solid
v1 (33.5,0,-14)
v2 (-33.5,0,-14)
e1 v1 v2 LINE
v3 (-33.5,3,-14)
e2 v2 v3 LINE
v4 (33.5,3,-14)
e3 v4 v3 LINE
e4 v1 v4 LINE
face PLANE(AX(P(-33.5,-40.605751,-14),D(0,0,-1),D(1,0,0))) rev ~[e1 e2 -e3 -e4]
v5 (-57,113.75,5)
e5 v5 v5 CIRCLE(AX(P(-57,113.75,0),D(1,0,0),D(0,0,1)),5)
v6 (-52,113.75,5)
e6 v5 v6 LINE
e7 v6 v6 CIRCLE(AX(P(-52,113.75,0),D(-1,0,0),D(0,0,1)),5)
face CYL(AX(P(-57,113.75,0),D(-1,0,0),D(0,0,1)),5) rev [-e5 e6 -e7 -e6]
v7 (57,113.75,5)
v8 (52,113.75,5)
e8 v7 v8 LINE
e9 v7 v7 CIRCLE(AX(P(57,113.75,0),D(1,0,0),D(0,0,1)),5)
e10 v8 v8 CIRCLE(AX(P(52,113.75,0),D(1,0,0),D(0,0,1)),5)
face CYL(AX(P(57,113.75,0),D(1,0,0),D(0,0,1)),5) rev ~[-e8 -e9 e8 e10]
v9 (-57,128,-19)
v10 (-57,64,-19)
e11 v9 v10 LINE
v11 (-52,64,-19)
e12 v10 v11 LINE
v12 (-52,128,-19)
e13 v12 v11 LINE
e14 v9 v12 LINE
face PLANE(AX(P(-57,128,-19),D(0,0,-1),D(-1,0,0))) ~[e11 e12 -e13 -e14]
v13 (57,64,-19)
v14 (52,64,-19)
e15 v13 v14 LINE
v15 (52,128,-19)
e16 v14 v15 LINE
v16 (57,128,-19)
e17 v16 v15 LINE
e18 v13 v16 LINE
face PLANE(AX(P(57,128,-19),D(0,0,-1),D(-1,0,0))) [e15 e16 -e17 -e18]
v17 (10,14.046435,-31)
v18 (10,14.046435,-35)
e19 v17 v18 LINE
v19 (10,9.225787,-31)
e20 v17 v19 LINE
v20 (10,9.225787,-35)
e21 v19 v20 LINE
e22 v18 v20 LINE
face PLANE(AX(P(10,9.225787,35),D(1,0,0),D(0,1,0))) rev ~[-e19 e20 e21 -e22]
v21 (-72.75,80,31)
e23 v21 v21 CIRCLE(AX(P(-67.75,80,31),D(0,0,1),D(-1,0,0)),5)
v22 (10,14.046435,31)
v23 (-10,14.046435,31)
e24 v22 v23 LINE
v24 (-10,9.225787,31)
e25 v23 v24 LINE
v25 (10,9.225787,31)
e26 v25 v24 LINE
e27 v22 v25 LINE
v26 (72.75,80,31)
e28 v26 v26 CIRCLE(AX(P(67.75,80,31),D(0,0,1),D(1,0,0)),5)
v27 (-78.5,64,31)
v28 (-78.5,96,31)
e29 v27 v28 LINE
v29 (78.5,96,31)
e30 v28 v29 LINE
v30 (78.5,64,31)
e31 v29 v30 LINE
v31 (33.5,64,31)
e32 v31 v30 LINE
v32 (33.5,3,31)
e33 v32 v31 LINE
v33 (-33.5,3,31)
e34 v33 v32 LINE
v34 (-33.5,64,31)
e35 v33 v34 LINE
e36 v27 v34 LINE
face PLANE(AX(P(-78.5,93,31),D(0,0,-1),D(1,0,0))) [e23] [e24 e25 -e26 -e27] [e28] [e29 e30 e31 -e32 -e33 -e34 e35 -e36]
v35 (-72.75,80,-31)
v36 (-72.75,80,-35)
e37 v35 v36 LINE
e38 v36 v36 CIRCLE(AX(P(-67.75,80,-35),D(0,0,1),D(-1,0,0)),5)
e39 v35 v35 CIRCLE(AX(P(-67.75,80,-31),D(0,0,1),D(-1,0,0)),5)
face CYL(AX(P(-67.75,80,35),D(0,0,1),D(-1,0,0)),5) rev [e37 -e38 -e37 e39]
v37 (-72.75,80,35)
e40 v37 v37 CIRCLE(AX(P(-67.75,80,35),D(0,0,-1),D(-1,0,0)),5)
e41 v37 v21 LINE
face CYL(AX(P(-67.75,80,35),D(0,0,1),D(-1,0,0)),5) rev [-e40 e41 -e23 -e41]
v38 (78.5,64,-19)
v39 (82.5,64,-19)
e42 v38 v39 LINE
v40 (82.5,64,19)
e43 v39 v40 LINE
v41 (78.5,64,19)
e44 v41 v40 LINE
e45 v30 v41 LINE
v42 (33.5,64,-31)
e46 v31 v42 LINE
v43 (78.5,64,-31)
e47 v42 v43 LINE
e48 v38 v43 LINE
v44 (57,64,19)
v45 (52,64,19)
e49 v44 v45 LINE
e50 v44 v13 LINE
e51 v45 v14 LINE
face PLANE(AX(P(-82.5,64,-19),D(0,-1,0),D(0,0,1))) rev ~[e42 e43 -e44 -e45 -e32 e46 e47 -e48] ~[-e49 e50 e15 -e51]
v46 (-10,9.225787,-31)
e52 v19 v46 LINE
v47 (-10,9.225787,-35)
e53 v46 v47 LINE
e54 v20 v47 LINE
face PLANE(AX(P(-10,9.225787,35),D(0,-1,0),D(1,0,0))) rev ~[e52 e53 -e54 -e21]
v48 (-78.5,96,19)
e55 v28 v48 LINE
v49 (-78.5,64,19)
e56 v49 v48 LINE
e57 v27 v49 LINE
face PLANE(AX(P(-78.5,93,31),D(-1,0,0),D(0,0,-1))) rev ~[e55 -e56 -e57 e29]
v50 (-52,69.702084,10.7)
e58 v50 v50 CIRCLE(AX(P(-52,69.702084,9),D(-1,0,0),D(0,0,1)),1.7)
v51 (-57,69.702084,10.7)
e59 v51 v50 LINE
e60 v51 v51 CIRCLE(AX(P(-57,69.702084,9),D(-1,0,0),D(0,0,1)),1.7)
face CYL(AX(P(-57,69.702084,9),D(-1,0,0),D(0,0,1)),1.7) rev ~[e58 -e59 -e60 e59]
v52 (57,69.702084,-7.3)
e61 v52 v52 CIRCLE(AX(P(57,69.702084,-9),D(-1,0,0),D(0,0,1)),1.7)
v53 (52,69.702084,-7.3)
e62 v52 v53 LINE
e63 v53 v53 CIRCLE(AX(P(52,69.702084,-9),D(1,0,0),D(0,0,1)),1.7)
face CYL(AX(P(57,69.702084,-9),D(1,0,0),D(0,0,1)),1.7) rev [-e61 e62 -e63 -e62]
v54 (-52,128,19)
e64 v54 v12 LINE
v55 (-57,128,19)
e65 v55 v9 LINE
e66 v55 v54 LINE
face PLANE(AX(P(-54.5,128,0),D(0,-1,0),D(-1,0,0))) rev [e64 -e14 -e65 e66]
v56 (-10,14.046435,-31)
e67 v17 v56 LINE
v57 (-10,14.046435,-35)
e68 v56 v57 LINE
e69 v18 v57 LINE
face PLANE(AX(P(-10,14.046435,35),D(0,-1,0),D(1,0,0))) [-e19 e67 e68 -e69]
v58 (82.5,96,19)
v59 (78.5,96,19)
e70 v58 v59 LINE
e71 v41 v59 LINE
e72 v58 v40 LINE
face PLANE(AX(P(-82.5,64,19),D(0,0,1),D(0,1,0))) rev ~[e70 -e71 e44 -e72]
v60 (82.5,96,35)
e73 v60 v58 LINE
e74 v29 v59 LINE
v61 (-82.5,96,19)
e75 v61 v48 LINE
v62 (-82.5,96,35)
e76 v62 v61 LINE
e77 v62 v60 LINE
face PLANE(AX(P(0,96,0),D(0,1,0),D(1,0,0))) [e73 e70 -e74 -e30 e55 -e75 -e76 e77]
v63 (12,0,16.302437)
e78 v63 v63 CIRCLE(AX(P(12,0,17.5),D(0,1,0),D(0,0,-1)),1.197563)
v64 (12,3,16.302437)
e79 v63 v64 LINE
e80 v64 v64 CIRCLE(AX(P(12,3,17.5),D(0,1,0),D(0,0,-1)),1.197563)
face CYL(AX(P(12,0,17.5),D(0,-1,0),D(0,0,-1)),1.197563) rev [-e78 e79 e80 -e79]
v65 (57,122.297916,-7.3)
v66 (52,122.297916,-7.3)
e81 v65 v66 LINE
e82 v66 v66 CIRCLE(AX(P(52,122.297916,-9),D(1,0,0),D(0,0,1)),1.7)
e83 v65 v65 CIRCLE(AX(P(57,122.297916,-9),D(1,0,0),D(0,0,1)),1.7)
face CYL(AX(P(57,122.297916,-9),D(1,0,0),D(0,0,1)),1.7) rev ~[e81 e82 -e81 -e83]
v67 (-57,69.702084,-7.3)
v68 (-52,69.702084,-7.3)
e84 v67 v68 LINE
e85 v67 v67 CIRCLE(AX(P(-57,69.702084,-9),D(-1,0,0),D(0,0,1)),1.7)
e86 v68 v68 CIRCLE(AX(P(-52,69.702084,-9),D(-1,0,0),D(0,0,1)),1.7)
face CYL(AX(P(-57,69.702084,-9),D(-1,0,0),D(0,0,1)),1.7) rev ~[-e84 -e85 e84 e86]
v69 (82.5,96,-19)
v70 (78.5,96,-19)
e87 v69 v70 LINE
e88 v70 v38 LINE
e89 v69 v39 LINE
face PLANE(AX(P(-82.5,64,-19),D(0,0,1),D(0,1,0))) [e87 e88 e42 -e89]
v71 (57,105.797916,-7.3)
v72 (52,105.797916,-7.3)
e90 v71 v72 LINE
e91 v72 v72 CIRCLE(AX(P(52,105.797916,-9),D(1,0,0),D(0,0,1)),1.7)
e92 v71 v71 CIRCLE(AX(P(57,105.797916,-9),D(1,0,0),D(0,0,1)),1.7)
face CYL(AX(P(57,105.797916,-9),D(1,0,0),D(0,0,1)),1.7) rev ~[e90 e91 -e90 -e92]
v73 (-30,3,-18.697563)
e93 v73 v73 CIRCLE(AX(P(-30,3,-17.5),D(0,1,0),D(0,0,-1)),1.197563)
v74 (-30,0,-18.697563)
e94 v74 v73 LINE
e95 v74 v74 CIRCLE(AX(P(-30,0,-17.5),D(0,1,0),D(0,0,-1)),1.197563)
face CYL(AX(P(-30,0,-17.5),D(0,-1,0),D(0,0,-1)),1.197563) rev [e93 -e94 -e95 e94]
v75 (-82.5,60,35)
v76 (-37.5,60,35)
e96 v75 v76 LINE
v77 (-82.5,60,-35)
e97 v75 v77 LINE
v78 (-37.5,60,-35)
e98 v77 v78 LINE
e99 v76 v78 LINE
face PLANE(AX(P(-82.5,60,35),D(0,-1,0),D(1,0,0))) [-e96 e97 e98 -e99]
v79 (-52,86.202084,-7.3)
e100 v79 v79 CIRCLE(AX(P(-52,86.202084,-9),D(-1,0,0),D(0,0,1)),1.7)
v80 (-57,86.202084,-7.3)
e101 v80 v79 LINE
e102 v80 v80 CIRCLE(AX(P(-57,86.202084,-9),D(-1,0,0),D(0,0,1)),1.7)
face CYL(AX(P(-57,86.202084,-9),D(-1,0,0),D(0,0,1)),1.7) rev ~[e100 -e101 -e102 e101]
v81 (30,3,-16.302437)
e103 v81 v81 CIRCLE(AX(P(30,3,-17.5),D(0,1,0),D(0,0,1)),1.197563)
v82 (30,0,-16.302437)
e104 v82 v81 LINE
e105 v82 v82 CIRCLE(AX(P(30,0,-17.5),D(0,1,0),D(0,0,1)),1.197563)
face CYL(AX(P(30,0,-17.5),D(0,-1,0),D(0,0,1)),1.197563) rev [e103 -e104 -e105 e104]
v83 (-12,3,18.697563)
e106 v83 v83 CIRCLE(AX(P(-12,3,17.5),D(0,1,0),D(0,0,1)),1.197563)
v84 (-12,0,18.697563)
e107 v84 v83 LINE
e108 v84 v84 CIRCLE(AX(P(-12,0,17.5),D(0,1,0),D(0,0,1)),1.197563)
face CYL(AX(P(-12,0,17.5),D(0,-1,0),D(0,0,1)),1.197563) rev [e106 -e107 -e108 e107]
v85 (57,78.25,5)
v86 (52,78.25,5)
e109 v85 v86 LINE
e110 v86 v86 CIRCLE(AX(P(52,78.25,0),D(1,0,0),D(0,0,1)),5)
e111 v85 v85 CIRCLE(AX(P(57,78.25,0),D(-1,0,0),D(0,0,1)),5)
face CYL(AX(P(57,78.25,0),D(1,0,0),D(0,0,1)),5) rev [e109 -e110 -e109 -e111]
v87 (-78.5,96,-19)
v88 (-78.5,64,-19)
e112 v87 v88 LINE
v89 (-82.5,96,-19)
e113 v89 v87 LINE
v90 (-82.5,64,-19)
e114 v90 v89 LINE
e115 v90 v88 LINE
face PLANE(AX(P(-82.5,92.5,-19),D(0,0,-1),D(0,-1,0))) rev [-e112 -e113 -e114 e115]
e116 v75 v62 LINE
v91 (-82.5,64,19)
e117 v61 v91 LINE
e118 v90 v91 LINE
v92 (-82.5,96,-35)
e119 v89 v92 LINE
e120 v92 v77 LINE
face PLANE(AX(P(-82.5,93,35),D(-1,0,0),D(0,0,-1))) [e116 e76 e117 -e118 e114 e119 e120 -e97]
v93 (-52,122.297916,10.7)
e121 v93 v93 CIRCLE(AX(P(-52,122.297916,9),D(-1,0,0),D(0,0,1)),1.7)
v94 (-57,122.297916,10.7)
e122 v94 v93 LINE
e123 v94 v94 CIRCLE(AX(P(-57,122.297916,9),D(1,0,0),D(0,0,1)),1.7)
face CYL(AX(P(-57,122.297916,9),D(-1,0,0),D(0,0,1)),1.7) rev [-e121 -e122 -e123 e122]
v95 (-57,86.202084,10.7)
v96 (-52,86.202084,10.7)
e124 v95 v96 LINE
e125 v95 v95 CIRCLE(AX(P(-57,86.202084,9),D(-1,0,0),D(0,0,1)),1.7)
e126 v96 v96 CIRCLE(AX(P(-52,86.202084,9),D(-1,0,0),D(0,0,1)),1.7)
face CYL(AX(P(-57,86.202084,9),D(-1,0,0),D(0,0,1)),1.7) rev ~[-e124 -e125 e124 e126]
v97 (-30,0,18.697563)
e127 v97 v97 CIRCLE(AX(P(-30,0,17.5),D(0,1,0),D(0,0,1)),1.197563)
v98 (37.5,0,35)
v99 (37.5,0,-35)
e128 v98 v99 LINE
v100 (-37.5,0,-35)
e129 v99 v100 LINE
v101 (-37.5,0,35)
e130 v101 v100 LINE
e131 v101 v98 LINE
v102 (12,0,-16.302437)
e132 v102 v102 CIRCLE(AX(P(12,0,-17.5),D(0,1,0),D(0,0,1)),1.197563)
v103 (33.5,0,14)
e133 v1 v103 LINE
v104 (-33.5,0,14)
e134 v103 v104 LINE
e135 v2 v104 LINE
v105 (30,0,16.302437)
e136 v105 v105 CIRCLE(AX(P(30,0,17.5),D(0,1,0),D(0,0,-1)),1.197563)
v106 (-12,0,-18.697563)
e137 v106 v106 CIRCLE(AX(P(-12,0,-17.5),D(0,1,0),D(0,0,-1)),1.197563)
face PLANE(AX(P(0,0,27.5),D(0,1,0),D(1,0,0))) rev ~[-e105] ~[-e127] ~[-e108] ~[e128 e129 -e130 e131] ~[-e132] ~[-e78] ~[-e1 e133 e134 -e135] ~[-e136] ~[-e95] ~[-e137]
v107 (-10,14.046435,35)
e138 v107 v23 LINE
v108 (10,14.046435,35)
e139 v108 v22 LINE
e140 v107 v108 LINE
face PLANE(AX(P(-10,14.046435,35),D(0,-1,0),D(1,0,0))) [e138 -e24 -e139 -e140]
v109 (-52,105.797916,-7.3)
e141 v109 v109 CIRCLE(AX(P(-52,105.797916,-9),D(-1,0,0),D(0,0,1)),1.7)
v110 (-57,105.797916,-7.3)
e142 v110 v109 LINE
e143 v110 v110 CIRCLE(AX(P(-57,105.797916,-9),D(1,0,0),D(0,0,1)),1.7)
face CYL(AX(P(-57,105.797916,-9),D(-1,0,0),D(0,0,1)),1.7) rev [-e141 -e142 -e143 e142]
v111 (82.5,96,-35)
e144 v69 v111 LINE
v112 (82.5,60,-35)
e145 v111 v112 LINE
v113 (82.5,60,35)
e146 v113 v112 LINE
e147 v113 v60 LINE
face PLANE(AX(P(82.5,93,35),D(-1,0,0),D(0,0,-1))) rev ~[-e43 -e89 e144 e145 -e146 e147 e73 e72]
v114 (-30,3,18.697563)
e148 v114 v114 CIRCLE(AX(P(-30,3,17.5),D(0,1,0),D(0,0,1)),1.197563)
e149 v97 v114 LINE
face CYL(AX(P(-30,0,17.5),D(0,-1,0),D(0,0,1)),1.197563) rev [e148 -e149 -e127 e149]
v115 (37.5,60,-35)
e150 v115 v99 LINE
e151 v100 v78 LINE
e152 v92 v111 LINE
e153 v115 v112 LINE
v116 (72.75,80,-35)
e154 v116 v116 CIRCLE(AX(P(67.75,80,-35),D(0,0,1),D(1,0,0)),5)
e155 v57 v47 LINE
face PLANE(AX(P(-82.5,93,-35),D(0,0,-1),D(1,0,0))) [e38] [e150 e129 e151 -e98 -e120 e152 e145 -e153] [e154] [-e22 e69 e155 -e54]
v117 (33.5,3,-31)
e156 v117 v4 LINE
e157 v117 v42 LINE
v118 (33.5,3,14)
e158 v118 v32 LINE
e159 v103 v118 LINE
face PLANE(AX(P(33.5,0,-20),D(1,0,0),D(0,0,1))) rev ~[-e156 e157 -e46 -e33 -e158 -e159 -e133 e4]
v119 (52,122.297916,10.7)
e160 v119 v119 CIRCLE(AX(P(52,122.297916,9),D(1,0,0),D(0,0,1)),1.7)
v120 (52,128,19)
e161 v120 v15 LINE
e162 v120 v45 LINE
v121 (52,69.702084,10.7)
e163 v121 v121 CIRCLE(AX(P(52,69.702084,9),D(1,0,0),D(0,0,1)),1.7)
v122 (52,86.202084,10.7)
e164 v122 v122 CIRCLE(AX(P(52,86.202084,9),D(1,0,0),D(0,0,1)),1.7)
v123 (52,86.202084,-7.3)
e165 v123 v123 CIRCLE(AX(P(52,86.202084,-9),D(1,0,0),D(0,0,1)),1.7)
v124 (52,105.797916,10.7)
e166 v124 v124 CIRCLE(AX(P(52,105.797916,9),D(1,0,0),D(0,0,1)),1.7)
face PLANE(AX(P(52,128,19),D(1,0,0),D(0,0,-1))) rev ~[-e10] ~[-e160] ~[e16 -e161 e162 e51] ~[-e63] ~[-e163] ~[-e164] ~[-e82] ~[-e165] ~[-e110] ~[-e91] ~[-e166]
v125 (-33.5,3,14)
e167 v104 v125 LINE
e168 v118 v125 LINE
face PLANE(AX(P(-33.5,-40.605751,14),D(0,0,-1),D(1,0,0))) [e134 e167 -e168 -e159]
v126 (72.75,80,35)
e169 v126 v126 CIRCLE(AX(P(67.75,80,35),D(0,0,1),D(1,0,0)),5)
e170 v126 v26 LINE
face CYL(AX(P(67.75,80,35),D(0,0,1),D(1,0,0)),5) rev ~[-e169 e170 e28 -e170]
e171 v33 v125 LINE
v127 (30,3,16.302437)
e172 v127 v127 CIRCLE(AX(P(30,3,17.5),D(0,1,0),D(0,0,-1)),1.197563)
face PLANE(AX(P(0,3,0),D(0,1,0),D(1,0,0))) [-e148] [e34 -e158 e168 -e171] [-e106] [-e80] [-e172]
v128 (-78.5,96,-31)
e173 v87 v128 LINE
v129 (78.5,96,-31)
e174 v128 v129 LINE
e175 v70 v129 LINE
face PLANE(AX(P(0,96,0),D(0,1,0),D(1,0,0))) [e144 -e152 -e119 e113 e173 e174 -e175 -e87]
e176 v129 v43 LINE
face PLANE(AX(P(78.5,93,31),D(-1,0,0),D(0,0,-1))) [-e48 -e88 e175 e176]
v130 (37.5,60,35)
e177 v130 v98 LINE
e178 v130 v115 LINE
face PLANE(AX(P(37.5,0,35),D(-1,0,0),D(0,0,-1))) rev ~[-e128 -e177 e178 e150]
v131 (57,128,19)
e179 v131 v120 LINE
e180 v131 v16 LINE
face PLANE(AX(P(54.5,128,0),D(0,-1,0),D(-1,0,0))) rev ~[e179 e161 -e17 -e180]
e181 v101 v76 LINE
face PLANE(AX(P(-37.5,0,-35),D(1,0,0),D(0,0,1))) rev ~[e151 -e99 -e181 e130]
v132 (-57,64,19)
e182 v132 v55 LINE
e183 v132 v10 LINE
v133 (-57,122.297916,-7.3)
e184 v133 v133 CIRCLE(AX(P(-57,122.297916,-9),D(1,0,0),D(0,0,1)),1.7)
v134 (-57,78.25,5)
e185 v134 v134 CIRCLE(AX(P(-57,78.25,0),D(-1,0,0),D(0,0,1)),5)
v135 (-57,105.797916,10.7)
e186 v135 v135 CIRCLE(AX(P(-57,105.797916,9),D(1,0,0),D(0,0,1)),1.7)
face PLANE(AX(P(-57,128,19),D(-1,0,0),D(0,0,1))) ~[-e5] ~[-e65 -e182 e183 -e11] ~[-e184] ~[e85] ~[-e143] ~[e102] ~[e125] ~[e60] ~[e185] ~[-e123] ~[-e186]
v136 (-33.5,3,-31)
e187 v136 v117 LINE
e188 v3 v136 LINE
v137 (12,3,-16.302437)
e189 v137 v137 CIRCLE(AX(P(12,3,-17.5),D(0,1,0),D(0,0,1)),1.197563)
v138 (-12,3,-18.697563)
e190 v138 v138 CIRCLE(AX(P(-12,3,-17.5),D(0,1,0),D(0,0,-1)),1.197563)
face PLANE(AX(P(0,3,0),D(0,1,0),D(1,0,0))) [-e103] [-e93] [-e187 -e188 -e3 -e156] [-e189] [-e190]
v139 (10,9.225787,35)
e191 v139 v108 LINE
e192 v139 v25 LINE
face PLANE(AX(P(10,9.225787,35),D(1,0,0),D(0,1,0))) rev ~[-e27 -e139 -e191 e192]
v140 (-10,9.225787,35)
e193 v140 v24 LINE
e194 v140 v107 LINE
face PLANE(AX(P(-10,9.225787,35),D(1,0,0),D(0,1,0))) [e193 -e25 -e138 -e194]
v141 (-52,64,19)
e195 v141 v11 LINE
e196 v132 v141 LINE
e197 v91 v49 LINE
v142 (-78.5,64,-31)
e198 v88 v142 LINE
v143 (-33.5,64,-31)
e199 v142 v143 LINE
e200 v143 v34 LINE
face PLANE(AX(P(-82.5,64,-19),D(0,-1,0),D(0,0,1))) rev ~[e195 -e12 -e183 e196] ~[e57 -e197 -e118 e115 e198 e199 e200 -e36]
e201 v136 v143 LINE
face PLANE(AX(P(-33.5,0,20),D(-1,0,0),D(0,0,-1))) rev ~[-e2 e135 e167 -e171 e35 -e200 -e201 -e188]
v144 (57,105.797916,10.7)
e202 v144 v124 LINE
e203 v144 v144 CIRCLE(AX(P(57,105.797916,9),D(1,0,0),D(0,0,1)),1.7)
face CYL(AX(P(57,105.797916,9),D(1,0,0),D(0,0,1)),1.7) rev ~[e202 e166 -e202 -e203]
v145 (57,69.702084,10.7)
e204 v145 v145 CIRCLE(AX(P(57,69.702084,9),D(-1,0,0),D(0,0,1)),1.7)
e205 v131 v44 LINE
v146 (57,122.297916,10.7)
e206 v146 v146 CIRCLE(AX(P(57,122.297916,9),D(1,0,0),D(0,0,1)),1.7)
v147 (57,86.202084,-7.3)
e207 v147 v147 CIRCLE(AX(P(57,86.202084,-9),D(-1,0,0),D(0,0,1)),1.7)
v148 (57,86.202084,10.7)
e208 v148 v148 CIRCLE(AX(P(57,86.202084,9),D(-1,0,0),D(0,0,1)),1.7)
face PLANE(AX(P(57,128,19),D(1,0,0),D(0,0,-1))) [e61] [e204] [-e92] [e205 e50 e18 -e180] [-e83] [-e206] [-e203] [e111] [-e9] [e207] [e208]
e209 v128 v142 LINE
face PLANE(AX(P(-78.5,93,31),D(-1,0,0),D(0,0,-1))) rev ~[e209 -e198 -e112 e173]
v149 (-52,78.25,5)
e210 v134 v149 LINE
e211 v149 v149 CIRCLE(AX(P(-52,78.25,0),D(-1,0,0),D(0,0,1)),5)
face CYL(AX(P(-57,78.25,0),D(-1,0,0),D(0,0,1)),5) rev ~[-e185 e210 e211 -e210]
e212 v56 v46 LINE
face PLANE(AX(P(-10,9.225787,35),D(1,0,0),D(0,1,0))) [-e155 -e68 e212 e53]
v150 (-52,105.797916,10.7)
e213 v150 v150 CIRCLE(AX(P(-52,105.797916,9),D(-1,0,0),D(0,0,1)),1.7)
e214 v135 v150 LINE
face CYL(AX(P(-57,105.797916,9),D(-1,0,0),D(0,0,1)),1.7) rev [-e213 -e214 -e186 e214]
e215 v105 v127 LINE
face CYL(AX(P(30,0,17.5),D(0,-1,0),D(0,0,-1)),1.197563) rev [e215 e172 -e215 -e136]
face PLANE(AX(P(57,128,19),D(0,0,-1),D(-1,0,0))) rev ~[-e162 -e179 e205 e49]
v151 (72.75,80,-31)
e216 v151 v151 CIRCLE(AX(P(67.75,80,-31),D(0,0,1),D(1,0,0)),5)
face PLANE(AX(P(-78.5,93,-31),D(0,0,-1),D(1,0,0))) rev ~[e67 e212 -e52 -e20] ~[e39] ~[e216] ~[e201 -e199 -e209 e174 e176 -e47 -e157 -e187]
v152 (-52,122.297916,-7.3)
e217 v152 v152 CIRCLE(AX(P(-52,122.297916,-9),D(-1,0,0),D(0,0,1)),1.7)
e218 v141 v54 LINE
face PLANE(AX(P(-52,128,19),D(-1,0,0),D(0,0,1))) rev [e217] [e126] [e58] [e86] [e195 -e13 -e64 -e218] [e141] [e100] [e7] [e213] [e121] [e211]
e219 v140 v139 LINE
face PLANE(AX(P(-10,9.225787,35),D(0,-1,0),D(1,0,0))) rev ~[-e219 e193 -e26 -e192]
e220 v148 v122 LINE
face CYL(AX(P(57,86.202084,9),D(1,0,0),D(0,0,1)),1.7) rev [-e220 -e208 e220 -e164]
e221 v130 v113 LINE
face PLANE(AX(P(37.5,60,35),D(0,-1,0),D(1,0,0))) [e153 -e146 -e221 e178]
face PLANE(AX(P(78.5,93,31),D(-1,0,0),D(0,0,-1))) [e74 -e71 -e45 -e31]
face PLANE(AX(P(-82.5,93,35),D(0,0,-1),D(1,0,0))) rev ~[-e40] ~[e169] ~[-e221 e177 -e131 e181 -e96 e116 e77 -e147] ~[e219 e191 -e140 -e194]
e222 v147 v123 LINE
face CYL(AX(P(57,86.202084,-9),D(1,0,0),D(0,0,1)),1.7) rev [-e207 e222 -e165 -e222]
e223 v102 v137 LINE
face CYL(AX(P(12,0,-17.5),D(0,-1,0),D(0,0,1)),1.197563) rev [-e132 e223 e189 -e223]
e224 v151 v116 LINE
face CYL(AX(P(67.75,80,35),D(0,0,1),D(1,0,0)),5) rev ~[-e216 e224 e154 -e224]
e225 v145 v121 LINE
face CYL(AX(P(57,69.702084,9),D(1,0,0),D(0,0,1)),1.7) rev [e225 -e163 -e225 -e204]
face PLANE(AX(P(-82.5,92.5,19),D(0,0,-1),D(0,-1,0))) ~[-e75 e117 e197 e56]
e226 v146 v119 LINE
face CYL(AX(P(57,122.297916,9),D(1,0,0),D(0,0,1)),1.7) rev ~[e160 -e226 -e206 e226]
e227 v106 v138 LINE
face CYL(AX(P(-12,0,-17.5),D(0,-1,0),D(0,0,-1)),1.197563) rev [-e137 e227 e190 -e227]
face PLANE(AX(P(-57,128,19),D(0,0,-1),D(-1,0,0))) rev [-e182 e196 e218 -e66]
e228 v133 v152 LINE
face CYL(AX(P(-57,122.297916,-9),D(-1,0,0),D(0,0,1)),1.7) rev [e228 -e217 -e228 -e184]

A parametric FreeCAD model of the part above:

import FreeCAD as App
import Part
import Sketcher
from FreeCAD import Vector
Q = App.Units.Quantity


def add_polygon(sketch, points):
    """Adds a closed chain of lines whose ends are joined by coincident constraints."""
    first, n = sketch.GeometryCount, len(points)
    for a, b in zip(points, points[1:] + points[:1]):
        sketch.addGeometry(Part.LineSegment(App.Vector(*a, 0), App.Vector(*b, 0)), False)
    for i in range(n):
        sketch.addConstraint(Sketcher.Constraint("Coincident", first + i, 2, first + (i + 1) % n, 1))

doc = App.newDocument("Part")
body = doc.addObject("PartDesign::Body", "Body")

# Sketch on XZ plane
sketch1 = body.newObject("Sketcher::SketchObject", "Sketch")
sketch1.AttachmentSupport = (doc.getObject("XZ_Plane"), [""])
sketch1.MapMode = "FlatFace"
add_polygon(sketch1, [(-37.5, -20), (-37.5, 20), (37.5, 20), (37.5, -20)])  # lines 0-3
sketch1.addGeometry(Part.Circle(Vector(-30, 17.5, 0), Vector(0, 0, 1), 1.2), False)  # 4
sketch1.addGeometry(Part.Circle(Vector(-12, 17.5, 0), Vector(0, 0, 1), 1.2), False)  # 5
sketch1.addGeometry(Part.Circle(Vector(-30, 8.2, 0), Vector(0, 0, 1), 1.7), False)  # 6
sketch1.addGeometry(Part.Circle(Vector(-12, 8.2, 0), Vector(0, 0, 1), 1.7), False)  # 7
sketch1.addGeometry(Part.Circle(Vector(12, 17.5, 0), Vector(0, 0, 1), 1.2), False)  # 8
sketch1.addGeometry(Part.Circle(Vector(30, 17.5, 0), Vector(0, 0, 1), 1.2), False)  # 9
sketch1.addGeometry(Part.Circle(Vector(12, 8.2, 0), Vector(0, 0, 1), 1.7), False)  # 10
sketch1.addGeometry(Part.Circle(Vector(30, 8.2, 0), Vector(0, 0, 1), 1.7), False)  # 11
sketch1.addGeometry(Part.Circle(Vector(-21, 0, 0), Vector(0, 0, 1), 5), False)  # 12
sketch1.addGeometry(Part.Circle(Vector(-30, -8.2, 0), Vector(0, 0, 1), 1.7), False)  # 13
add_polygon(sketch1, [(2.5, 10), (-2.5, 10), (-2.5, -10), (2.5, -10)])  # lines 14-17
sketch1.addGeometry(Part.Circle(Vector(-12, -8.2, 0), Vector(0, 0, 1), 1.7), False)  # 18
sketch1.addGeometry(Part.Circle(Vector(-30, -17.5, 0), Vector(0, 0, 1), 1.2), False)  # 19
sketch1.addGeometry(Part.Circle(Vector(-12, -17.5, 0), Vector(0, 0, 1), 1.2), False)  # 20
sketch1.addGeometry(Part.Circle(Vector(12, -8.2, 0), Vector(0, 0, 1), 1.7), False)  # 21
sketch1.addGeometry(Part.Circle(Vector(21, 0, 0), Vector(0, 0, 1), 5), False)  # 22
sketch1.addGeometry(Part.Circle(Vector(30, -8.2, 0), Vector(0, 0, 1), 1.7), False)  # 23
sketch1.addGeometry(Part.Circle(Vector(12, -17.5, 0), Vector(0, 0, 1), 1.2), False)  # 24
sketch1.addGeometry(Part.Circle(Vector(30, -17.5, 0), Vector(0, 0, 1), 1.2), False)  # 25
sketch1.addConstraint([
    Sketcher.Constraint("Vertical", 0),
    Sketcher.Constraint("Horizontal", 1),
    Sketcher.Constraint("Vertical", 2),
    Sketcher.Constraint("Horizontal", 3),
    Sketcher.Constraint("Horizontal", 14),
    Sketcher.Constraint("Vertical", 15),
    Sketcher.Constraint("Horizontal", 16),
    Sketcher.Constraint("Vertical", 17),
    Sketcher.Constraint("Equal", 4, 5),
    Sketcher.Constraint("Equal", 6, 7),
    Sketcher.Constraint("Equal", 5, 8),
    Sketcher.Constraint("Equal", 8, 9),
    Sketcher.Constraint("Equal", 7, 10),
    Sketcher.Constraint("Equal", 10, 11),
    Sketcher.Constraint("Equal", 11, 13),
    Sketcher.Constraint("Equal", 13, 18),
    Sketcher.Constraint("Equal", 9, 19),
    Sketcher.Constraint("Equal", 19, 20),
    Sketcher.Constraint("Equal", 18, 21),
    Sketcher.Constraint("Equal", 12, 22),
    Sketcher.Constraint("Equal", 21, 23),
    Sketcher.Constraint("Equal", 20, 24),
    Sketcher.Constraint("Equal", 24, 25),
    Sketcher.Constraint("Symmetric", 11, 3, 13, 3, -1, 1),
    Sketcher.Constraint("Symmetric", 10, 3, 18, 3, -1, 1),
    Sketcher.Constraint("Symmetric", 9, 3, 19, 3, -1, 1),
    Sketcher.Constraint("Symmetric", 8, 3, 20, 3, -1, 1),
    Sketcher.Constraint("Symmetric", 7, 3, 21, 3, -1, 1),
    Sketcher.Constraint("Symmetric", 12, 3, 22, 3, -1, 1),
    Sketcher.Constraint("Symmetric", 6, 3, 23, 3, -1, 1),
    Sketcher.Constraint("Symmetric", 5, 3, 24, 3, -1, 1),
    Sketcher.Constraint("Symmetric", 4, 3, 25, 3, -1, 1),
    Sketcher.Constraint("Symmetric", 0, 2, 2, 2, -1, 1),
    Sketcher.Constraint("Symmetric", 14, 2, 16, 2, -1, 1),
    Sketcher.Constraint("Symmetric", 5, 3, 8, 3, -2),
    Sketcher.Constraint("Symmetric", 4, 3, 9, 3, -2),
    Sketcher.Constraint("Symmetric", 7, 3, 10, 3, -2),
    Sketcher.Constraint("Symmetric", 6, 3, 11, 3, -2),
    Sketcher.Constraint("PointOnObject", 12, 3, -1),
    Sketcher.Constraint("Horizontal", 4, 3, 5, 3),
    Sketcher.Constraint("Horizontal", 6, 3, 7, 3),
    Sketcher.Constraint("Vertical", 4, 3, 6, 3),
    Sketcher.Constraint("Vertical", 5, 3, 7, 3),
    Sketcher.Constraint("Diameter", 12, Q("10 mm")),
    Sketcher.Constraint("Diameter", 6, Q("3.4 mm")),
    Sketcher.Constraint("DistanceX", 1, 1, 1, 2, Q("75 mm")),
    Sketcher.Constraint("DistanceX", 14, 2, 14, 1, Q("5 mm")),
    Sketcher.Constraint("DistanceY", 0, 1, 0, 2, Q("40 mm")),
    Sketcher.Constraint("DistanceY", 15, 2, 15, 1, Q("20 mm")),
    Sketcher.Constraint("DistanceX", 4, 3, -1, 1, Q("30 mm")),
    Sketcher.Constraint("DistanceX", 5, 3, -1, 1, Q("12 mm")),
    Sketcher.Constraint("DistanceX", 12, 3, -1, 1, Q("21 mm")),
    Sketcher.Constraint("DistanceY", -1, 1, 4, 3, Q("17.5 mm")),
    Sketcher.Constraint("DistanceY", 13, 3, 6, 3, Q("16.5 mm")),
    Sketcher.Constraint("Diameter", 4, Q("2.395127 mm")),
])
pad1 = body.newObject("PartDesign::Pad", "Pad")
pad1.Profile = sketch1
pad1.Length = 3
pad1.Reversed = True

# Sketch on XZ plane
sketch2 = body.newObject("Sketcher::SketchObject", "Sketch001")
sketch2.AttachmentSupport = (doc.getObject("XZ_Plane"), [""])
sketch2.MapMode = "FlatFace"
sketch2.AttachmentOffset = App.Placement(Vector(0, 0, -3), App.Rotation())
add_polygon(sketch2, [(-34, -14), (-34, 14), (34, 14), (34, -14)])  # lines 0-3
sketch2.addConstraint([
    Sketcher.Constraint("Vertical", 0),
    Sketcher.Constraint("Horizontal", 1),
    Sketcher.Constraint("Vertical", 2),
    Sketcher.Constraint("Horizontal", 3),
    Sketcher.Constraint("Symmetric", 0, 2, 2, 2, -1, 1),
    Sketcher.Constraint("DistanceX", 1, 1, 1, 2, Q("67 mm")),
    Sketcher.Constraint("DistanceY", 0, 1, 0, 2, Q("28 mm")),
])
pocket1 = body.newObject("PartDesign::Pocket", "Pocket")
pocket1.Profile = sketch2
pocket1.Type = "ThroughAll"
pocket1.Midplane = True

# Sketch on XZ plane
sketch3 = body.newObject("Sketcher::SketchObject", "Sketch002")
sketch3.AttachmentSupport = (doc.getObject("XZ_Plane"), [""])
sketch3.MapMode = "FlatFace"
sketch3.AttachmentOffset = App.Placement(Vector(0, 0, -3), App.Rotation())
add_polygon(sketch3, [(38, 35), (38, -35), (-38, -35), (-38, 35)])  # lines 0-3
add_polygon(sketch3, [(-34, -20), (34, -20), (34, 20), (-34, 20)])  # lines 4-7
sketch3.addConstraint([
    Sketcher.Constraint("Vertical", 0),
    Sketcher.Constraint("Horizontal", 1),
    Sketcher.Constraint("Vertical", 2),
    Sketcher.Constraint("Horizontal", 3),
    Sketcher.Constraint("Horizontal", 4),
    Sketcher.Constraint("Vertical", 5),
    Sketcher.Constraint("Horizontal", 6),
    Sketcher.Constraint("Vertical", 7),
    Sketcher.Constraint("Symmetric", 0, 2, 2, 2, -1, 1),
    Sketcher.Constraint("Symmetric", 4, 2, 6, 2, -1, 1),
    Sketcher.Constraint("DistanceX", 1, 2, 1, 1, Q("75 mm")),
    Sketcher.Constraint("DistanceX", 4, 1, 4, 2, Q("67 mm")),
    Sketcher.Constraint("DistanceY", 0, 2, 0, 1, Q("70 mm")),
    Sketcher.Constraint("DistanceY", 5, 1, 5, 2, Q("40 mm")),
])
pad2 = body.newObject("PartDesign::Pad", "Pad001")
pad2.Profile = sketch3
pad2.Type = "TwoLengths"
pad2.Length = 90
pad2.Length2 = 3
pad2.Reversed = True

# Sketch on XZ plane
sketch4 = body.newObject("Sketcher::SketchObject", "Sketch003")
sketch4.AttachmentSupport = (doc.getObject("XZ_Plane"), [""])
sketch4.MapMode = "FlatFace"
sketch4.AttachmentOffset = App.Placement(Vector(0, 0, -3), App.Rotation())
add_polygon(sketch4, [(-34, 20), (-34, 31), (34, 31), (34, 20)])  # lines 0-3
add_polygon(sketch4, [(-34, -31), (-34, -20), (34, -20), (34, -31)])  # lines 4-7
sketch4.addConstraint([
    Sketcher.Constraint("Vertical", 0),
    Sketcher.Constraint("Horizontal", 1),
    Sketcher.Constraint("Vertical", 2),
    Sketcher.Constraint("Horizontal", 3),
    Sketcher.Constraint("Vertical", 4),
    Sketcher.Constraint("Horizontal", 5),
    Sketcher.Constraint("Vertical", 6),
    Sketcher.Constraint("Horizontal", 7),
    Sketcher.Constraint("Symmetric", 2, 2, 4, 2, -1, 1),
    Sketcher.Constraint("Symmetric", 0, 2, 6, 2, -1, 1),
    Sketcher.Constraint("Vertical", 3, 2, 4, 2),
    Sketcher.Constraint("DistanceX", 1, 1, 1, 2, Q("67 mm")),
    Sketcher.Constraint("DistanceY", 0, 1, 0, 2, Q("11 mm")),
    Sketcher.Constraint("DistanceY", -1, 1, 0, 2, Q("31 mm")),
])
pocket2 = body.newObject("PartDesign::Pocket", "Pocket001")
pocket2.Profile = sketch4
pocket2.Type = "ThroughAll"

# Sketch on YZ plane
sketch5 = body.newObject("Sketcher::SketchObject", "Sketch004")
sketch5.AttachmentSupport = (doc.getObject("YZ_Plane"), [""])
sketch5.MapMode = "FlatFace"
sketch5.AttachmentOffset = App.Placement(Vector(0, 0, -37.5), App.Rotation())
add_polygon(sketch5, [(93, -35), (56, -35), (56, 35), (93, 35)])  # lines 0-3
sketch5.addConstraint([
    Sketcher.Constraint("Horizontal", 0),
    Sketcher.Constraint("Vertical", 1),
    Sketcher.Constraint("Horizontal", 2),
    Sketcher.Constraint("Vertical", 3),
    Sketcher.Constraint("DistanceX", 0, 2, 0, 1, Q("37 mm")),
    Sketcher.Constraint("DistanceY", 1, 1, 1, 2, Q("70 mm")),
    Sketcher.Constraint("DistanceX", -1, 1, 0, 2, Q("56 mm")),
    Sketcher.Constraint("DistanceY", 0, 2, -1, 1, Q("35 mm")),
])
pad3 = body.newObject("PartDesign::Pad", "Pad002")
pad3.Profile = sketch5
pad3.Length = 45
pad3.Reversed = True
doc.recompute()

mirrored = body.newObject("PartDesign::Mirrored", "Mirrored")
mirrored.Originals = [pad3]
mirrored.MirrorPlane = (doc.getObject("YZ_Plane"), [""])
body.Tip = mirrored

# Sketch on XZ plane
sketch6 = body.newObject("Sketcher::SketchObject", "Sketch005")
sketch6.AttachmentSupport = (doc.getObject("XZ_Plane"), [""])
sketch6.MapMode = "FlatFace"
sketch6.AttachmentOffset = App.Placement(Vector(0, 0, -93), App.Rotation())
add_polygon(sketch6, [(-78, -31), (-78, 31), (-34, 31), (-34, -31)])  # lines 0-3
add_polygon(sketch6, [(34, -31), (34, 31), (78, 31), (78, -31)])  # lines 4-7
sketch6.addConstraint([
    Sketcher.Constraint("Vertical", 0),
    Sketcher.Constraint("Horizontal", 1),
    Sketcher.Constraint("Vertical", 2),
    Sketcher.Constraint("Horizontal", 3),
    Sketcher.Constraint("Vertical", 4),
    Sketcher.Constraint("Horizontal", 5),
    Sketcher.Constraint("Vertical", 6),
    Sketcher.Constraint("Horizontal", 7),
    Sketcher.Constraint("Symmetric", 2, 2, 4, 2, -1, 1),
    Sketcher.Constraint("Symmetric", 0, 2, 6, 2, -1, 1),
    Sketcher.Constraint("Horizontal", 1, 2, 4, 2),
    Sketcher.Constraint("DistanceX", 1, 1, 1, 2, Q("45 mm")),
    Sketcher.Constraint("DistanceY", 0, 1, 0, 2, Q("62 mm")),
    Sketcher.Constraint("DistanceX", 1, 2, 4, 2, Q("67 mm")),
])
pocket3 = body.newObject("PartDesign::Pocket", "Pocket002")
pocket3.Profile = sketch6
pocket3.Length = 29
pocket3.Reversed = True

# Sketch on XY plane
sketch7 = body.newObject("Sketcher::SketchObject", "Sketch006")
sketch7.AttachmentSupport = (doc.getObject("XY_Plane"), [""])
sketch7.MapMode = "FlatFace"
sketch7.AttachmentOffset = App.Placement(Vector(0, 0, 35), App.Rotation())
add_polygon(sketch7, [(-82.5, 60), (-82.5, 56), (-37.5, 56), (-37.5, 60)])  # lines 0-3
add_polygon(sketch7, [(37.5, 60), (37.5, 56), (82.5, 56), (82.5, 60)])  # lines 4-7
sketch7.addConstraint([
    Sketcher.Constraint("Vertical", 0),
    Sketcher.Constraint("Horizontal", 1),
    Sketcher.Constraint("Vertical", 2),
    Sketcher.Constraint("Horizontal", 3),
    Sketcher.Constraint("Vertical", 4),
    Sketcher.Constraint("Horizontal", 5),
    Sketcher.Constraint("Vertical", 6),
    Sketcher.Constraint("Horizontal", 7),
    Sketcher.Constraint("Symmetric", 1, 2, 4, 2, -2),
    Sketcher.Constraint("Symmetric", 3, 2, 6, 2, -2),
    Sketcher.Constraint("DistanceX", 1, 1, 1, 2, Q("45 mm")),
    Sketcher.Constraint("DistanceY", 0, 2, 0, 1, Q("4 mm")),
    Sketcher.Constraint("DistanceY", -1, 1, 0, 2, Q("56 mm")),
    Sketcher.Constraint("DistanceX", 1, 2, 4, 2, Q("75 mm")),
])
pocket4 = body.newObject("PartDesign::Pocket", "Pocket003")
pocket4.Profile = sketch7
pocket4.Type = "ThroughAll"

# Sketch on YZ plane
sketch8 = body.newObject("Sketcher::SketchObject", "Sketch007")
sketch8.AttachmentSupport = (doc.getObject("YZ_Plane"), [""])
sketch8.MapMode = "FlatFace"
sketch8.AttachmentOffset = App.Placement(Vector(0, 0, -82.5), App.Rotation())
add_polygon(sketch8, [(92, -19), (64, -19), (64, 19), (92, 19)])  # lines 0-3
sketch8.addConstraint([
    Sketcher.Constraint("Horizontal", 0),
    Sketcher.Constraint("Vertical", 1),
    Sketcher.Constraint("Horizontal", 2),
    Sketcher.Constraint("Vertical", 3),
    Sketcher.Constraint("DistanceY", 1, 1, 1, 2, Q("38 mm")),
    Sketcher.Constraint("DistanceX", 0, 2, 0, 1, Q("28.5 mm")),
    Sketcher.Constraint("DistanceX", -1, 1, 0, 2, Q("64 mm")),
    Sketcher.Constraint("DistanceY", 0, 2, -1, 1, Q("19 mm")),
])
pocket5 = body.newObject("PartDesign::Pocket", "Pocket004")
pocket5.Profile = sketch8
pocket5.Type = "ThroughAll"
pocket5.Reversed = True

# Sketch on XZ plane
sketch9 = body.newObject("Sketcher::SketchObject", "Sketch008")
sketch9.AttachmentSupport = (doc.getObject("XZ_Plane"), [""])
sketch9.MapMode = "FlatFace"
sketch9.AttachmentOffset = App.Placement(Vector(0, 0, -64), App.Rotation())
add_polygon(sketch9, [(-57, -19), (-57, 19), (-52, 19), (-52, -19)])  # lines 0-3
sketch9.addConstraint([
    Sketcher.Constraint("Vertical", 0),
    Sketcher.Constraint("Horizontal", 1),
    Sketcher.Constraint("Vertical", 2),
    Sketcher.Constraint("Horizontal", 3),
    Sketcher.Constraint("DistanceX", 1, 1, 1, 2, Q("5 mm")),
    Sketcher.Constraint("DistanceY", 0, 1, 0, 2, Q("38 mm")),
    Sketcher.Constraint("DistanceX", 0, 2, -1, 1, Q("57 mm")),
    Sketcher.Constraint("DistanceY", -1, 1, 0, 2, Q("19 mm")),
])
pad4 = body.newObject("PartDesign::Pad", "Pad003")
pad4.Profile = sketch9
pad4.Length = 32
pad4.Reversed = True

# Sketch on YZ plane
sketch10 = body.newObject("Sketcher::SketchObject", "Sketch009")
sketch10.AttachmentSupport = (doc.getObject("YZ_Plane"), [""])
sketch10.MapMode = "FlatFace"
sketch10.AttachmentOffset = App.Placement(Vector(0, 0, -57), App.Rotation())
sketch10.addGeometry([
    Part.Circle(Vector(78.2, 0, 0), Vector(0, 0, 1), 5),  # 0
    Part.Circle(Vector(86.2, -9, 0), Vector(0, 0, 1), 1.7),  # 1
    Part.Circle(Vector(86.2, 9, 0), Vector(0, 0, 1), 1.7),  # 2
    Part.Circle(Vector(69.7, 9, 0), Vector(0, 0, 1), 1.7),  # 3
    Part.Circle(Vector(69.7, -9, 0), Vector(0, 0, 1), 1.7),  # 4
], False)
sketch10.addConstraint([
    Sketcher.Constraint("Equal", 1, 2),
    Sketcher.Constraint("Equal", 2, 3),
    Sketcher.Constraint("Equal", 3, 4),
    Sketcher.Constraint("Symmetric", 1, 3, 2, 3, -1),
    Sketcher.Constraint("Symmetric", 3, 3, 4, 3, -1),
    Sketcher.Constraint("PointOnObject", 0, 3, -1),
    Sketcher.Constraint("Horizontal", 2, 3, 3, 3),
    Sketcher.Constraint("Diameter", 0, Q("10 mm")),
    Sketcher.Constraint("Diameter", 1, Q("3.4 mm")),
    Sketcher.Constraint("DistanceY", 1, 3, -1, 1, Q("9 mm")),
    Sketcher.Constraint("DistanceX", 3, 3, 2, 3, Q("16.5 mm")),
    Sketcher.Constraint("DistanceX", -1, 1, 0, 3, Q("78.25 mm")),
    Sketcher.Constraint("DistanceX", -1, 1, 1, 3, Q("86.202084 mm")),
])
pocket6 = body.newObject("PartDesign::Pocket", "Pocket005")
pocket6.Profile = sketch10
pocket6.Length = 32
pocket6.Reversed = True
doc.recompute()

mirrored2 = body.newObject("PartDesign::Mirrored", "Mirrored001")
mirrored2.Originals = [pad4, pocket6]
mirrored2.MirrorPlane = (doc.getObject("YZ_Plane"), [""])
body.Tip = mirrored2

# Sketch on XZ plane
sketch11 = body.newObject("Sketcher::SketchObject", "Sketch010")
sketch11.AttachmentSupport = (doc.getObject("XZ_Plane"), [""])
sketch11.MapMode = "FlatFace"
sketch11.AttachmentOffset = App.Placement(Vector(0, 0, -93), App.Rotation())
add_polygon(sketch11, [(-82, -35), (-82, 35), (82, 35), (82, -35)])  # lines 0-3
add_polygon(sketch11, [(78, 31), (-78, 31), (-78, -31), (78, -31)])  # lines 4-7
sketch11.addConstraint([
    Sketcher.Constraint("Vertical", 0),
    Sketcher.Constraint("Horizontal", 1),
    Sketcher.Constraint("Vertical", 2),
    Sketcher.Constraint("Horizontal", 3),
    Sketcher.Constraint("Horizontal", 4),
    Sketcher.Constraint("Vertical", 5),
    Sketcher.Constraint("Horizontal", 6),
    Sketcher.Constraint("Vertical", 7),
    Sketcher.Constraint("Symmetric", 0, 2, 2, 2, -1, 1),
    Sketcher.Constraint("Symmetric", 4, 2, 6, 2, -1, 1),
    Sketcher.Constraint("DistanceX", 1, 1, 1, 2, Q("165 mm")),
    Sketcher.Constraint("DistanceX", 4, 2, 4, 1, Q("157 mm")),
    Sketcher.Constraint("DistanceY", 0, 1, 0, 2, Q("70 mm")),
    Sketcher.Constraint("DistanceY", 5, 2, 5, 1, Q("62 mm")),
])
pad5 = body.newObject("PartDesign::Pad", "Pad004")
pad5.Profile = sketch11
pad5.Length = 3
pad5.Reversed = True

# Sketch on XY plane
sketch12 = body.newObject("Sketcher::SketchObject", "Sketch011")
sketch12.AttachmentSupport = (doc.getObject("XY_Plane"), [""])
sketch12.MapMode = "FlatFace"
sketch12.AttachmentOffset = App.Placement(Vector(0, 0, 35), App.Rotation())
add_polygon(sketch12, [(-10, 14), (-10, 9.2), (10, 9.2), (10, 14)])  # lines 0-3
sketch12.addConstraint([
    Sketcher.Constraint("Vertical", 0),
    Sketcher.Constraint("Horizontal", 1),
    Sketcher.Constraint("Vertical", 2),
    Sketcher.Constraint("Horizontal", 3),
    Sketcher.Constraint("DistanceX", 1, 1, 1, 2, Q("20 mm")),
    Sketcher.Constraint("DistanceX", 0, 2, -1, 1, Q("10 mm")),
    Sketcher.Constraint("DistanceY", 0, 2, 0, 1, Q("4.820648 mm")),
    Sketcher.Constraint("DistanceY", -1, 1, 0, 2, Q("9.225787 mm")),
])
pocket7 = body.newObject("PartDesign::Pocket", "Pocket006")
pocket7.Profile = sketch12
pocket7.Type = "ThroughAll"

# Sketch on XY plane
sketch13 = body.newObject("Sketcher::SketchObject", "Sketch012")
sketch13.AttachmentSupport = (doc.getObject("XY_Plane"), [""])
sketch13.MapMode = "FlatFace"
sketch13.AttachmentOffset = App.Placement(Vector(0, 0, 35), App.Rotation())
sketch13.addGeometry(Part.Circle(Vector(68, 80, 0), Vector(0, 0, 1), 5), False)
sketch13.addConstraint([
    Sketcher.Constraint("Diameter", 0, Q("10 mm")),
    Sketcher.Constraint("DistanceY", -1, 1, 0, 3, Q("80 mm")),
    Sketcher.Constraint("DistanceX", -1, 1, 0, 3, Q("67.75 mm")),
])
pocket8 = body.newObject("PartDesign::Pocket", "Pocket007")
pocket8.Profile = sketch13
pocket8.Type = "ThroughAll"
doc.recompute()

mirrored3 = body.newObject("PartDesign::Mirrored", "Mirrored002")
mirrored3.Originals = [pocket8]
mirrored3.MirrorPlane = (doc.getObject("YZ_Plane"), [""])
body.Tip = mirrored3
doc.recompute()

datumplane = body.newObject("PartDesign::Plane", "DatumPlane")
datumplane.AttachmentSupport = (doc.getObject("XZ_Plane"), [""])
datumplane.MapMode = "FlatFace"
datumplane.AttachmentOffset = App.Placement(Vector(0, 0, -96), App.Rotation())
mirrored4 = body.newObject("PartDesign::Mirrored", "Mirrored003")
mirrored4.Originals = [pad4, pocket6]
mirrored4.MirrorPlane = (datumplane, [""])
body.Tip = mirrored4

# Sketch on XZ plane
sketch14 = body.newObject("Sketcher::SketchObject", "Sketch013")
sketch14.AttachmentSupport = (doc.getObject("XZ_Plane"), [""])
sketch14.MapMode = "FlatFace"
sketch14.AttachmentOffset = App.Placement(Vector(0, 0, -128), App.Rotation())
add_polygon(sketch14, [(57, -19), (57, 19), (52, 19), (52, -19)])  # lines 0-3
sketch14.addConstraint([
    Sketcher.Constraint("Vertical", 0),
    Sketcher.Constraint("Horizontal", 1),
    Sketcher.Constraint("Vertical", 2),
    Sketcher.Constraint("Horizontal", 3),
    Sketcher.Constraint("DistanceX", 1, 2, 1, 1, Q("5 mm")),
    Sketcher.Constraint("DistanceY", 0, 1, 0, 2, Q("38 mm")),
    Sketcher.Constraint("DistanceX", -1, 1, 0, 2, Q("57 mm")),
    Sketcher.Constraint("DistanceY", -1, 1, 0, 2, Q("19 mm")),
])
pad6 = body.newObject("PartDesign::Pad", "Pad005")
pad6.Profile = sketch14
pad6.Length = 32

# Sketch on YZ plane
sketch15 = body.newObject("Sketcher::SketchObject", "Sketch014")
sketch15.AttachmentSupport = (doc.getObject("YZ_Plane"), [""])
sketch15.MapMode = "FlatFace"
sketch15.AttachmentOffset = App.Placement(Vector(0, 0, 57), App.Rotation())
sketch15.addGeometry([
    Part.Circle(Vector(113.8, 0, 0), Vector(0, 0, 1), 5),  # 0
    Part.Circle(Vector(105.8, -9, 0), Vector(0, 0, 1), 1.7),  # 1
    Part.Circle(Vector(105.8, 9, 0), Vector(0, 0, 1), 1.7),  # 2
    Part.Circle(Vector(122.3, 9, 0), Vector(0, 0, 1), 1.7),  # 3
    Part.Circle(Vector(122.3, -9, 0), Vector(0, 0, 1), 1.7),  # 4
], False)
sketch15.addConstraint([
    Sketcher.Constraint("Equal", 1, 2),
    Sketcher.Constraint("Equal", 2, 3),
    Sketcher.Constraint("Equal", 3, 4),
    Sketcher.Constraint("Symmetric", 1, 3, 2, 3, -1),
    Sketcher.Constraint("Symmetric", 3, 3, 4, 3, -1),
    Sketcher.Constraint("PointOnObject", 0, 3, -1),
    Sketcher.Constraint("Horizontal", 2, 3, 3, 3),
    Sketcher.Constraint("Diameter", 0, Q("10 mm")),
    Sketcher.Constraint("Diameter", 1, Q("3.4 mm")),
    Sketcher.Constraint("DistanceY", 1, 3, -1, 1, Q("9 mm")),
    Sketcher.Constraint("DistanceX", 2, 3, 3, 3, Q("16.5 mm")),
    Sketcher.Constraint("DistanceX", -1, 1, 0, 3, Q("113.75 mm")),
    Sketcher.Constraint("DistanceX", -1, 1, 1, 3, Q("105.797916 mm")),
])
pocket9 = body.newObject("PartDesign::Pocket", "Pocket008")
pocket9.Profile = sketch15
pocket9.Length = 32

# Sketch on YZ plane
sketch16 = body.newObject("Sketcher::SketchObject", "Sketch015")
sketch16.AttachmentSupport = (doc.getObject("YZ_Plane"), [""])
sketch16.MapMode = "FlatFace"
sketch16.AttachmentOffset = App.Placement(Vector(0, 0, 82.5), App.Rotation())
add_polygon(sketch16, [(96, 19), (92.5, 19), (92.5, -19), (96, -19)])  # lines 0-3
sketch16.addConstraint([
    Sketcher.Constraint("Horizontal", 0),
    Sketcher.Constraint("Vertical", 1),
    Sketcher.Constraint("Horizontal", 2),
    Sketcher.Constraint("Vertical", 3),
    Sketcher.Constraint("DistanceY", 1, 2, 1, 1, Q("38 mm")),
    Sketcher.Constraint("DistanceX", 0, 2, 0, 1, Q("3.5 mm")),
    Sketcher.Constraint("DistanceY", -1, 1, 0, 2, Q("19 mm")),
    Sketcher.Constraint("DistanceX", -1, 1, 2, 2, Q("96 mm")),
])
pocket10 = body.newObject("PartDesign::Pocket", "Pocket009")
pocket10.Profile = sketch16
pocket10.Length = 10
doc.recompute()

mirrored5 = body.newObject("PartDesign::Mirrored", "Mirrored004")
mirrored5.Originals = [pocket10]
mirrored5.MirrorPlane = (doc.getObject("YZ_Plane"), [""])
body.Tip = mirrored5

doc.recompute()
